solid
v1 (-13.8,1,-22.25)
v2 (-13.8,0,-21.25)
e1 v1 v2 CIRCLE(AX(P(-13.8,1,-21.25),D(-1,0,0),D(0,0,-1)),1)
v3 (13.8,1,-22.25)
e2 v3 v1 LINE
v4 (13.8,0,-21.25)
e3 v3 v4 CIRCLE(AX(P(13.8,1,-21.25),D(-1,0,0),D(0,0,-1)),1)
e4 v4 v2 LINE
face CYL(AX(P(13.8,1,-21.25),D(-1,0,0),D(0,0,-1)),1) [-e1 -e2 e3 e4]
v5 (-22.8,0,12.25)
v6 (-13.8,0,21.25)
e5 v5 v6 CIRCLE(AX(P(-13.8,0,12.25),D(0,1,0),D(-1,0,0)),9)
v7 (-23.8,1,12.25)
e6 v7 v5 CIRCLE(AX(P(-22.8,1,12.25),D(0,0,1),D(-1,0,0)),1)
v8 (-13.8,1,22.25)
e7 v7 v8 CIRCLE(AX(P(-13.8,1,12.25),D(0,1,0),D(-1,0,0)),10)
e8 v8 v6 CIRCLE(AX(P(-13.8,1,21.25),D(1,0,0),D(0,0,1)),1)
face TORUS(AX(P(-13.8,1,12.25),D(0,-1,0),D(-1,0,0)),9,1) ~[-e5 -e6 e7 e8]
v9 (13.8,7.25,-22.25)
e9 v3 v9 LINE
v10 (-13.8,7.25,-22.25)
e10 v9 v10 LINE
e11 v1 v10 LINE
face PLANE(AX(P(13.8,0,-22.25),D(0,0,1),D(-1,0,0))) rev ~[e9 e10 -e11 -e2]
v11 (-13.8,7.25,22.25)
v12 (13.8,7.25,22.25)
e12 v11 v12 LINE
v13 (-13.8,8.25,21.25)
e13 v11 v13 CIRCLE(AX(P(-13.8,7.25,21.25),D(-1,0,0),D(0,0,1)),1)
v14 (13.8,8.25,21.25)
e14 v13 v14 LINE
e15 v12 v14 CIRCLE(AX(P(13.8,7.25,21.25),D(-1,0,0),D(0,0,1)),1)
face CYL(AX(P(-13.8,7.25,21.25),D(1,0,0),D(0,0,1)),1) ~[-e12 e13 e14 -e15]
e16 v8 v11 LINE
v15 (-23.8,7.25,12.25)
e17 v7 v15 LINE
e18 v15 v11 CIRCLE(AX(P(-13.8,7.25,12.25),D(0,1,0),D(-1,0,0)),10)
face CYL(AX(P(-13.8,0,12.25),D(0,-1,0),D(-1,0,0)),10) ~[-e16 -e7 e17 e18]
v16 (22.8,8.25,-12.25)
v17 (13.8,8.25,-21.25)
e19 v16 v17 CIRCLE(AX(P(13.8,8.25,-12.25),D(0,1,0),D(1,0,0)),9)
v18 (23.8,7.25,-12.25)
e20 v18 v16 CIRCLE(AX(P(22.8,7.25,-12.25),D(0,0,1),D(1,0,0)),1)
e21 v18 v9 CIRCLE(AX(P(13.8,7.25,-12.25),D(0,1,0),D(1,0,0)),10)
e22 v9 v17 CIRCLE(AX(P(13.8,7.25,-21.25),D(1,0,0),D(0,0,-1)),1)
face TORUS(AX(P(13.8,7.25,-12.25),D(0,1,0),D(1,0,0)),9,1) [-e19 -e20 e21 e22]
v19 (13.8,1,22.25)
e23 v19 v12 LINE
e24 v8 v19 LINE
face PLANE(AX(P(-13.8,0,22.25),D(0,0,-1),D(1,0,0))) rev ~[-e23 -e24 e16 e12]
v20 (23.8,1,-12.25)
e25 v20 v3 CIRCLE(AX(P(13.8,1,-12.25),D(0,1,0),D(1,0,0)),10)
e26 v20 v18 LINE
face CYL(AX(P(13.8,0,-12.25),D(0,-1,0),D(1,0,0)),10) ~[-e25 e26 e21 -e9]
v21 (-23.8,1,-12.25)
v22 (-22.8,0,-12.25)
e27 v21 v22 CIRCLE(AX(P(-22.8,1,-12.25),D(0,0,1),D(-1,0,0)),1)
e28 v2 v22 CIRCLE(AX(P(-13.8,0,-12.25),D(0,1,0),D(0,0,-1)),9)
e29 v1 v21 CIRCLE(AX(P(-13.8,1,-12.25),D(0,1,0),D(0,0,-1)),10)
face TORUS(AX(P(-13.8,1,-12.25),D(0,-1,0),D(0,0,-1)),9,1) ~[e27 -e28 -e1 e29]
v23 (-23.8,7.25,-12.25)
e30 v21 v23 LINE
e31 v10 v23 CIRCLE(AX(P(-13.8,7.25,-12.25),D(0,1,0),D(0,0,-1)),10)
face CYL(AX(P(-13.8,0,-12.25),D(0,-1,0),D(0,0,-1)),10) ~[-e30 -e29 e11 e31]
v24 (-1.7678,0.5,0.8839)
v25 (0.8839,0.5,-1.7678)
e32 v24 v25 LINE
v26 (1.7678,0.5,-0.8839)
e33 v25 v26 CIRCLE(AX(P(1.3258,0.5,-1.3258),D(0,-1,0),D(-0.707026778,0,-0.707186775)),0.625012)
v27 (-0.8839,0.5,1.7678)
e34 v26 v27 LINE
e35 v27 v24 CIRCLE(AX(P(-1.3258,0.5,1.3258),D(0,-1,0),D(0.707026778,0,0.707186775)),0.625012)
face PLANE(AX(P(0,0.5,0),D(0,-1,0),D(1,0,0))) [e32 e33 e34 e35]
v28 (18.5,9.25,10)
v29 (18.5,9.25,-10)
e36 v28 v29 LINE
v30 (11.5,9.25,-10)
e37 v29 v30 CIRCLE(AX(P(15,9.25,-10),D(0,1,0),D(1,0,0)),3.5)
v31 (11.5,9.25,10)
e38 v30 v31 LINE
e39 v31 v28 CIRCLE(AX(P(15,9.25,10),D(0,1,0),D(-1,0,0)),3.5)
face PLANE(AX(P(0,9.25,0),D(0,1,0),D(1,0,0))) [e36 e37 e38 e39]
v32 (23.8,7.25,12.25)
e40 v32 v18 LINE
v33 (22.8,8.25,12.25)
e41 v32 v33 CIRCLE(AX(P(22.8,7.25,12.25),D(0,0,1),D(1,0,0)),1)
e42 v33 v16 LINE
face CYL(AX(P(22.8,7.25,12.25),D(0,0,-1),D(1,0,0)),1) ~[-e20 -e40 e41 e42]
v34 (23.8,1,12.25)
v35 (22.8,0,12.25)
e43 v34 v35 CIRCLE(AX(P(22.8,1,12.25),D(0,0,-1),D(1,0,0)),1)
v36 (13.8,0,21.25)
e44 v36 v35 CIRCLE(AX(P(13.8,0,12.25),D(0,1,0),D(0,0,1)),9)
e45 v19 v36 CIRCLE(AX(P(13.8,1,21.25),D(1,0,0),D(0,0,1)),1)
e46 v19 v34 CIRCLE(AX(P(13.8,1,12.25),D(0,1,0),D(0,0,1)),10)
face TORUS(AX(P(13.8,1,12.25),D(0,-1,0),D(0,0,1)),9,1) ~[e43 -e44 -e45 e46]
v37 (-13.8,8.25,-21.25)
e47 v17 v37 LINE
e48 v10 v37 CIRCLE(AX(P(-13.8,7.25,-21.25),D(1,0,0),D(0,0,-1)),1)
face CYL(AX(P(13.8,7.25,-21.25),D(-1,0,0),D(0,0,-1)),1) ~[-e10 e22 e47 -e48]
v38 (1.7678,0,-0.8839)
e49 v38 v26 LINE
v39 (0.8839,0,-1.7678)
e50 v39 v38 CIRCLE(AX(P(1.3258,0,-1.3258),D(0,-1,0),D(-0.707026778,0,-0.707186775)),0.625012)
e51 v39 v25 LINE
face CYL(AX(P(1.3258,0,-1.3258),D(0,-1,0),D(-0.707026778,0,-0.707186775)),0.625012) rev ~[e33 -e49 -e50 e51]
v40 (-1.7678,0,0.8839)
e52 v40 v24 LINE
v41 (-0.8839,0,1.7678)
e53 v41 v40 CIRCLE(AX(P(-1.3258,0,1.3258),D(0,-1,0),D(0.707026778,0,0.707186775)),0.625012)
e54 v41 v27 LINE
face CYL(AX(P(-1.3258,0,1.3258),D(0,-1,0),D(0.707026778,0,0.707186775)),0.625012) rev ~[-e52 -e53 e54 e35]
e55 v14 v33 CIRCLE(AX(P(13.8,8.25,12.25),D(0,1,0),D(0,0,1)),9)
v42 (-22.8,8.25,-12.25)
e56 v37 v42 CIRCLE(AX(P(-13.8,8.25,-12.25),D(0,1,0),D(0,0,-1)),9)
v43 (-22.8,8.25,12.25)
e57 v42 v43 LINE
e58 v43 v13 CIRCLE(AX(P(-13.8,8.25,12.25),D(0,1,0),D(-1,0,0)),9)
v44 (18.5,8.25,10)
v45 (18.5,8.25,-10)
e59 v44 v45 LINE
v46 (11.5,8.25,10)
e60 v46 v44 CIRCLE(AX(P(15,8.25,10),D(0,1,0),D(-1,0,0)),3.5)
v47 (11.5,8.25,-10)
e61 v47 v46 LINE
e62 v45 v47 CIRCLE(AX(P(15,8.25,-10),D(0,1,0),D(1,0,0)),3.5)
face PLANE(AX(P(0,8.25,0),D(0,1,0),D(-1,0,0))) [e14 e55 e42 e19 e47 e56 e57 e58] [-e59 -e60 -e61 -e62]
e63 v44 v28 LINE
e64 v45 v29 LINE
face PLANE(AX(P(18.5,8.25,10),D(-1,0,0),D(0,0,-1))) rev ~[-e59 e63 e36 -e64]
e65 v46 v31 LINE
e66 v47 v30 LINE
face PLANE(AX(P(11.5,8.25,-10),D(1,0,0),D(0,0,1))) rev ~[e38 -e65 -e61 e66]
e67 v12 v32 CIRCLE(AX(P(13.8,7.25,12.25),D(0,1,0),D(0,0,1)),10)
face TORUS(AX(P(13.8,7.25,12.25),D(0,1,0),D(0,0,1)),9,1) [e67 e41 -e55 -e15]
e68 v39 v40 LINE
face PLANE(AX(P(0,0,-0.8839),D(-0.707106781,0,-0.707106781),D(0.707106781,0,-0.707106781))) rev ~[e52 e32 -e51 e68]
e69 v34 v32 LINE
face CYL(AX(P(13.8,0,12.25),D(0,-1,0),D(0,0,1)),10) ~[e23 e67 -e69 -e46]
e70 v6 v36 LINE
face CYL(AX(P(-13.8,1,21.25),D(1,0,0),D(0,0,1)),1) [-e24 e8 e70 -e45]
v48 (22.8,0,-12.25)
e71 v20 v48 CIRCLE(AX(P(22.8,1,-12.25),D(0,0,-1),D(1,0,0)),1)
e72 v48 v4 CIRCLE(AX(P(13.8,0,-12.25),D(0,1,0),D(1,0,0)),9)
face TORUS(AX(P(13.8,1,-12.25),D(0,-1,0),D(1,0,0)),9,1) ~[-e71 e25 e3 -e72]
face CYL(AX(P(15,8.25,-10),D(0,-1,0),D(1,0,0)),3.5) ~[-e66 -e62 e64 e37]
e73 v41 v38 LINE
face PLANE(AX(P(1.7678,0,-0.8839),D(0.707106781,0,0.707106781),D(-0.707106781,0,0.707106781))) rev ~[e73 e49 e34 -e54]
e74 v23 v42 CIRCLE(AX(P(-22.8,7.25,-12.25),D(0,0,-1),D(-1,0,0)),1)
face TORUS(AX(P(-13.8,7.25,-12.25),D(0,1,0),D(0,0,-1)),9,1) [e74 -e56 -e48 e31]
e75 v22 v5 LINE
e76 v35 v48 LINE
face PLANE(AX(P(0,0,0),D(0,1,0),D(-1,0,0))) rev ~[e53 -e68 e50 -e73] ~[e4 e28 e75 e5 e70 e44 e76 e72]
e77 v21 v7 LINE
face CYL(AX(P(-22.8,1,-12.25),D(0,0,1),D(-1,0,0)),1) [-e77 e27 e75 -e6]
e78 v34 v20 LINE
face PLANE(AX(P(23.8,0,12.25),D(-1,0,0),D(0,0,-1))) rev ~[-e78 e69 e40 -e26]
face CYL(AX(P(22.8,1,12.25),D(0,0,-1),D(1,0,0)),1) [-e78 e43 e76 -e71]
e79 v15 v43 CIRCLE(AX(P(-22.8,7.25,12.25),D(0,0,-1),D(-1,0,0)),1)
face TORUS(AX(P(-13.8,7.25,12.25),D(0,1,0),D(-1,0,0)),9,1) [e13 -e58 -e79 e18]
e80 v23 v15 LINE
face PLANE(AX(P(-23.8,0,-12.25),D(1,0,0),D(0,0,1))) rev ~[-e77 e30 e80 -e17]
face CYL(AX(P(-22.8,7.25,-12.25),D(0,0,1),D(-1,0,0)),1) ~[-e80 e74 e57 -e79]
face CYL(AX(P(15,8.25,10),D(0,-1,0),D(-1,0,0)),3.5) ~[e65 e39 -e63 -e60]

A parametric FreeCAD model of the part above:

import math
import FreeCAD as App
import Part
import Sketcher

V = App.Vector
Q = App.Units.Quantity


def edges_at(feature, points):
    """Names of the edges that pass closest to the given points."""
    edges = feature.Shape.Edges
    near = lambda p: min(range(len(edges)), key=lambda i: edges[i].distToShape(Part.Vertex(*p))[0])
    return sorted({f"Edge{near(p) + 1}" for p in points})

doc = App.newDocument("Part")
params = doc.addObject("Spreadsheet::Sheet", "Params")
for row, (alias, value) in enumerate([
    ("sketch1_radius", "10 mm"),
    ("sketch1_width", "27.6 mm"),
    ("sketch1_height", "24.5 mm"),
    ("pad1_length", "8.25 mm"),
    ("fillet_radius", "1 mm"),
    ("sketch2_length", "3.75 mm"),
    ("pocket1_length", "0.5 mm"),
    ("sketch3_radius", "3.5 mm"),
    ("pad2_length", "1 mm"),
], start=1):
    params.set(f"A{row}", alias)
    params.set(f"B{row}", "=" + value)
    params.setAlias(f"B{row}", alias)

body = doc.addObject("PartDesign::Body", "Body")

sketch1 = doc.addObject("Sketcher::SketchObject", "Sketch")
body.addObject(sketch1)
sketch1.AttachmentSupport = (doc.XZ_Plane, [""])
sketch1.MapMode = "FlatFace"
sketch1.addGeometry([
    Part.ArcOfCircle(Part.Circle(V(-14, 12, 0), V(0, 0, 1), 10), math.radians(90), math.radians(180)),
    Part.LineSegment(V(-14, 22, 0), V(14, 22, 0)),
    Part.ArcOfCircle(Part.Circle(V(14, 12, 0), V(0, 0, 1), 10), math.radians(0), math.radians(90)),
    Part.LineSegment(V(24, 12, 0), V(24, -12, 0)),
    Part.ArcOfCircle(Part.Circle(V(14, -12, 0), V(0, 0, 1), 10), math.radians(-90), math.radians(0)),
    Part.LineSegment(V(14, -22, 0), V(-14, -22, 0)),
    Part.ArcOfCircle(Part.Circle(V(-14, -12, 0), V(0, 0, 1), 10), math.radians(180), math.radians(270)),
    Part.LineSegment(V(-24, -12, 0), V(-24, 12, 0)),
], False)
sketch1.addConstraint([
    Sketcher.Constraint("Tangent", 0, 1, 1, 1),
    Sketcher.Constraint("Tangent", 1, 2, 2, 2),
    Sketcher.Constraint("Tangent", 2, 1, 3, 1),
    Sketcher.Constraint("Tangent", 3, 2, 4, 2),
    Sketcher.Constraint("Tangent", 4, 1, 5, 1),
    Sketcher.Constraint("Tangent", 5, 2, 6, 2),
    Sketcher.Constraint("Tangent", 6, 1, 7, 1),
    Sketcher.Constraint("Tangent", 7, 2, 0, 2),
    Sketcher.Constraint("Horizontal", 1),
    Sketcher.Constraint("Vertical", 3),
    Sketcher.Constraint("Horizontal", 5),
    Sketcher.Constraint("Vertical", 7),
    Sketcher.Constraint("Equal", 0, 2),
    Sketcher.Constraint("Equal", 2, 4),
    Sketcher.Constraint("Equal", 4, 6),
    Sketcher.Constraint("Symmetric", 0, 3, 4, 3, -1, 1),
    Sketcher.Constraint("Radius", 0, 10.0),
    Sketcher.Constraint("DistanceX", 1, 1, 1, 2, 27.6),
    Sketcher.Constraint("DistanceY", 3, 2, 3, 1, 24.5),
])
sketch1.setExpression("Constraints[16]", "Params.sketch1_radius")
sketch1.setExpression("Constraints[17]", "Params.sketch1_width")
sketch1.setExpression("Constraints[18]", "Params.sketch1_height")
pad1 = doc.addObject("PartDesign::Pad", "Pad")
body.addObject(pad1)
pad1.Profile = sketch1
pad1.setExpression("Length", "Params.pad1_length")
pad1.Reversed = True
doc.recompute()

fillet = doc.addObject("PartDesign::Fillet", "Fillet")
body.addObject(fillet)
fillet.Base = (pad1, edges_at(pad1, [
    (20.871, 0, 19.321),
    (23.8, 0, 0),
    (20.871, 0, -19.321),
    (0, 0, -22.25),
    (-20.871, 0, -19.321),
    (-23.8, 0, 0),
    (-20.871, 0, 19.321),
    (0, 0, 22.25),
    (23.8, 8.25, 0),
    (20.871, 8.25, -19.321),
    (0, 8.25, -22.25),
    (-20.871, 8.25, -19.321),
    (-23.8, 8.25, 0),
    (-20.871, 8.25, 19.321),
    (0, 8.25, 22.25),
    (20.871, 8.25, 19.321),
]))
fillet.setExpression("Radius", "Params.fillet_radius")

sketch2 = doc.addObject("Sketcher::SketchObject", "Sketch001")
body.addObject(sketch2)
sketch2.AttachmentSupport = (doc.XZ_Plane, [""])
sketch2.MapMode = "FlatFace"
sketch2.addGeometry([
    Part.ArcOfCircle(Part.Circle(V(1.3, -1.3, 0), V(0, 0, 1), 0.6), math.radians(-135), math.radians(45)),
    Part.LineSegment(V(1.8, -0.9, 0), V(-0.9, 1.8, 0)),
    Part.ArcOfCircle(Part.Circle(V(-1.3, 1.3, 0), V(0, 0, 1), 0.6), math.radians(45), math.radians(225)),
    Part.LineSegment(V(-1.8, 0.9, 0), V(0.9, -1.8, 0)),
], False)
sketch2.addConstraint([
    Sketcher.Constraint("Tangent", 0, 2, 1, 1),
    Sketcher.Constraint("Tangent", 1, 2, 2, 1),
    Sketcher.Constraint("Tangent", 2, 2, 3, 1),
    Sketcher.Constraint("Tangent", 3, 2, 0, 1),
    Sketcher.Constraint("Equal", 0, 2),
    Sketcher.Constraint("Symmetric", 0, 3, 2, 3, -1, 1),
    Sketcher.Constraint("Angle", 1, Q("135 deg")),
    Sketcher.Constraint("Radius", 0, 0.625),
    Sketcher.Constraint("Distance", 1, 3.75),
])
sketch2.setExpression("Constraints[8]", "Params.sketch2_length")
pocket1 = doc.addObject("PartDesign::Pocket", "Pocket")
body.addObject(pocket1)
pocket1.Profile = sketch2
pocket1.setExpression("Length", "Params.pocket1_length")

sketch3 = doc.addObject("Sketcher::SketchObject", "Sketch002")
body.addObject(sketch3)
sketch3.AttachmentSupport = (doc.XZ_Plane, [""])
sketch3.MapMode = "FlatFace"
sketch3.AttachmentOffset = App.Placement(V(0, 0, -8.25), App.Rotation())
sketch3.addGeometry([
    Part.ArcOfCircle(Part.Circle(V(15, -10, 0), V(0, 0, 1), 3.5), math.radians(180), math.radians(360)),
    Part.LineSegment(V(11.5, -10, 0), V(11.5, 10, 0)),
    Part.ArcOfCircle(Part.Circle(V(15, 10, 0), V(0, 0, 1), 3.5), math.radians(0), math.radians(180)),
    Part.LineSegment(V(18.5, 10, 0), V(18.5, -10, 0)),
], False)
sketch3.addConstraint([
    Sketcher.Constraint("Tangent", 0, 1, 1, 1),
    Sketcher.Constraint("Tangent", 1, 2, 2, 2),
    Sketcher.Constraint("Tangent", 2, 1, 3, 1),
    Sketcher.Constraint("Tangent", 3, 2, 0, 2),
    Sketcher.Constraint("Vertical", 1),
    Sketcher.Constraint("Vertical", 3),
    Sketcher.Constraint("Radius", 0, 3.5),
    Sketcher.Constraint("DistanceX", -1, 1, 0, 3, 15.0),
    Sketcher.Constraint("DistanceY", 0, 3, -1, 1, 10.0),
    Sketcher.Constraint("DistanceY", -1, 1, 2, 3, 10.0),
])
sketch3.setExpression("Constraints[6]", "Params.sketch3_radius")
pad2 = doc.addObject("PartDesign::Pad", "Pad001")
body.addObject(pad2)
pad2.Profile = sketch3
pad2.setExpression("Length", "Params.pad2_length")
pad2.Reversed = True

doc.recompute()
